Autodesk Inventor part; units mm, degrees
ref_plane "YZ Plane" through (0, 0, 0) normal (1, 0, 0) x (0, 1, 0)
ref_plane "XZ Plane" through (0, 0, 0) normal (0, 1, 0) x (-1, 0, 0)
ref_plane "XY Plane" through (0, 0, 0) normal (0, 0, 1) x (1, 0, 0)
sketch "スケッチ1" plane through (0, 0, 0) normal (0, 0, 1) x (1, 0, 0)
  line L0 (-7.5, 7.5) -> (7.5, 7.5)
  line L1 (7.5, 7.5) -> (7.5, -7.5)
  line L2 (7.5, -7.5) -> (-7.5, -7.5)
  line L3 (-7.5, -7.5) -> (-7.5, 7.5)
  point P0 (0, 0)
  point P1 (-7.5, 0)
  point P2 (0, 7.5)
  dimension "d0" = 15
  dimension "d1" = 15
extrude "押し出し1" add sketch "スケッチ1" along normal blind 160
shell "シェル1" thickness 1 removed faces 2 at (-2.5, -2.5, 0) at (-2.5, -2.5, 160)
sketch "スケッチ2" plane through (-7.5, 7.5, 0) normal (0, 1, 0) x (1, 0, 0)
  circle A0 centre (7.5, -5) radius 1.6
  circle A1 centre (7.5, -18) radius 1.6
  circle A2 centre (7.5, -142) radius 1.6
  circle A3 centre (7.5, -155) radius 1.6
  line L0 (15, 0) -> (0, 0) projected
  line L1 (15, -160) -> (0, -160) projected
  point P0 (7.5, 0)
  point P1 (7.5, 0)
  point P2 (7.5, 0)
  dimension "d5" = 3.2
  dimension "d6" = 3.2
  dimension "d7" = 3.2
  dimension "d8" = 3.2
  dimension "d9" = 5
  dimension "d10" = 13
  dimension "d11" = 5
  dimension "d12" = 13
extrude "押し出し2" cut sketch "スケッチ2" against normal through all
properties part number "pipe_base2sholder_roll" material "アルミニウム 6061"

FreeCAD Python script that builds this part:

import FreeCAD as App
import Part
import Sketcher

V = App.Vector


def faces_at(feature, points):
    """Names of the faces that lie closest to the given points."""
    faces = feature.Shape.Faces
    near = lambda p: min(range(len(faces)), key=lambda i: faces[i].distToShape(Part.Vertex(*p))[0])
    return sorted({f"Face{near(p) + 1}" for p in points})

doc = App.newDocument("Part")
body = doc.addObject("PartDesign::Body", "Body")

sketch1 = body.newObject("Sketcher::SketchObject", "Sketch")
sketch1.AttachmentSupport = (doc.getObject("XY_Plane"), [""])
sketch1.MapMode = "FlatFace"
sketch1.addGeometry([
    Part.LineSegment(V(8, 8, 0), V(-8, 8, 0)),
    Part.LineSegment(V(-8, 8, 0), V(-8, -8, 0)),
    Part.LineSegment(V(-8, -8, 0), V(8, -8, 0)),
    Part.LineSegment(V(8, -8, 0), V(8, 8, 0)),
], False)
sketch1.addConstraint([
    Sketcher.Constraint("Coincident", 0, 2, 1, 1),
    Sketcher.Constraint("Coincident", 1, 2, 2, 1),
    Sketcher.Constraint("Coincident", 2, 2, 3, 1),
    Sketcher.Constraint("Coincident", 3, 2, 0, 1),
    Sketcher.Constraint("Horizontal", 0),
    Sketcher.Constraint("Vertical", 1),
    Sketcher.Constraint("Horizontal", 2),
    Sketcher.Constraint("Vertical", 3),
    Sketcher.Constraint("Symmetric", 0, 2, 2, 2, -1, 1),
    Sketcher.Constraint("Equal", 2, 1),
    Sketcher.Constraint("DistanceX", 0, 2, 0, 1, 15.0),
])
pad1 = body.newObject("PartDesign::Pad", "Pad")
pad1.Profile = sketch1
pad1.Length = 160
doc.recompute()

thickness = body.newObject("PartDesign::Thickness", "Thickness")
thickness.Base = (pad1, faces_at(pad1, [(-2.5, -2.5, 0), (-2.5, -2.5, 160)]))
thickness.Value = 1
thickness.Reversed = True
thickness.Join = "Intersection"

sketch2 = body.newObject("Sketcher::SketchObject", "Sketch001")
sketch2.AttachmentSupport = (doc.getObject("XZ_Plane"), [""])
sketch2.MapMode = "FlatFace"
sketch2.AttachmentOffset = App.Placement(V(0, 0, -7.5), App.Rotation())
sketch2.addGeometry([
    Part.Circle(V(0, 5, 0), V(0, 0, 1), 1.6),
    Part.Circle(V(0, 18, 0), V(0, 0, 1), 1.6),
    Part.Circle(V(0, 142, 0), V(0, 0, 1), 1.6),
    Part.Circle(V(0, 155, 0), V(0, 0, 1), 1.6),
], False)
sketch2.addConstraint([
    Sketcher.Constraint("Equal", 0, 1),
    Sketcher.Constraint("Equal", 1, 2),
    Sketcher.Constraint("Equal", 2, 3),
    Sketcher.Constraint("PointOnObject", 0, 3, -2),
    Sketcher.Constraint("PointOnObject", 1, 3, -2),
    Sketcher.Constraint("PointOnObject", 2, 3, -2),
    Sketcher.Constraint("PointOnObject", 3, 3, -2),
    Sketcher.Constraint("Diameter", 0, 3.2),
    Sketcher.Constraint("DistanceY", -1, 1, 0, 3, 5.0),
    Sketcher.Constraint("DistanceY", 0, 3, 1, 3, 13.0),
    Sketcher.Constraint("DistanceY", 2, 3, 3, 3, 13.0),
    Sketcher.Constraint("DistanceY", -1, 1, 2, 3, 142.0),
])
pocket1 = body.newObject("PartDesign::Pocket", "Pocket")
pocket1.Profile = sketch2
pocket1.Type = "ThroughAll"
pocket1.Reversed = True

doc.recompute()
